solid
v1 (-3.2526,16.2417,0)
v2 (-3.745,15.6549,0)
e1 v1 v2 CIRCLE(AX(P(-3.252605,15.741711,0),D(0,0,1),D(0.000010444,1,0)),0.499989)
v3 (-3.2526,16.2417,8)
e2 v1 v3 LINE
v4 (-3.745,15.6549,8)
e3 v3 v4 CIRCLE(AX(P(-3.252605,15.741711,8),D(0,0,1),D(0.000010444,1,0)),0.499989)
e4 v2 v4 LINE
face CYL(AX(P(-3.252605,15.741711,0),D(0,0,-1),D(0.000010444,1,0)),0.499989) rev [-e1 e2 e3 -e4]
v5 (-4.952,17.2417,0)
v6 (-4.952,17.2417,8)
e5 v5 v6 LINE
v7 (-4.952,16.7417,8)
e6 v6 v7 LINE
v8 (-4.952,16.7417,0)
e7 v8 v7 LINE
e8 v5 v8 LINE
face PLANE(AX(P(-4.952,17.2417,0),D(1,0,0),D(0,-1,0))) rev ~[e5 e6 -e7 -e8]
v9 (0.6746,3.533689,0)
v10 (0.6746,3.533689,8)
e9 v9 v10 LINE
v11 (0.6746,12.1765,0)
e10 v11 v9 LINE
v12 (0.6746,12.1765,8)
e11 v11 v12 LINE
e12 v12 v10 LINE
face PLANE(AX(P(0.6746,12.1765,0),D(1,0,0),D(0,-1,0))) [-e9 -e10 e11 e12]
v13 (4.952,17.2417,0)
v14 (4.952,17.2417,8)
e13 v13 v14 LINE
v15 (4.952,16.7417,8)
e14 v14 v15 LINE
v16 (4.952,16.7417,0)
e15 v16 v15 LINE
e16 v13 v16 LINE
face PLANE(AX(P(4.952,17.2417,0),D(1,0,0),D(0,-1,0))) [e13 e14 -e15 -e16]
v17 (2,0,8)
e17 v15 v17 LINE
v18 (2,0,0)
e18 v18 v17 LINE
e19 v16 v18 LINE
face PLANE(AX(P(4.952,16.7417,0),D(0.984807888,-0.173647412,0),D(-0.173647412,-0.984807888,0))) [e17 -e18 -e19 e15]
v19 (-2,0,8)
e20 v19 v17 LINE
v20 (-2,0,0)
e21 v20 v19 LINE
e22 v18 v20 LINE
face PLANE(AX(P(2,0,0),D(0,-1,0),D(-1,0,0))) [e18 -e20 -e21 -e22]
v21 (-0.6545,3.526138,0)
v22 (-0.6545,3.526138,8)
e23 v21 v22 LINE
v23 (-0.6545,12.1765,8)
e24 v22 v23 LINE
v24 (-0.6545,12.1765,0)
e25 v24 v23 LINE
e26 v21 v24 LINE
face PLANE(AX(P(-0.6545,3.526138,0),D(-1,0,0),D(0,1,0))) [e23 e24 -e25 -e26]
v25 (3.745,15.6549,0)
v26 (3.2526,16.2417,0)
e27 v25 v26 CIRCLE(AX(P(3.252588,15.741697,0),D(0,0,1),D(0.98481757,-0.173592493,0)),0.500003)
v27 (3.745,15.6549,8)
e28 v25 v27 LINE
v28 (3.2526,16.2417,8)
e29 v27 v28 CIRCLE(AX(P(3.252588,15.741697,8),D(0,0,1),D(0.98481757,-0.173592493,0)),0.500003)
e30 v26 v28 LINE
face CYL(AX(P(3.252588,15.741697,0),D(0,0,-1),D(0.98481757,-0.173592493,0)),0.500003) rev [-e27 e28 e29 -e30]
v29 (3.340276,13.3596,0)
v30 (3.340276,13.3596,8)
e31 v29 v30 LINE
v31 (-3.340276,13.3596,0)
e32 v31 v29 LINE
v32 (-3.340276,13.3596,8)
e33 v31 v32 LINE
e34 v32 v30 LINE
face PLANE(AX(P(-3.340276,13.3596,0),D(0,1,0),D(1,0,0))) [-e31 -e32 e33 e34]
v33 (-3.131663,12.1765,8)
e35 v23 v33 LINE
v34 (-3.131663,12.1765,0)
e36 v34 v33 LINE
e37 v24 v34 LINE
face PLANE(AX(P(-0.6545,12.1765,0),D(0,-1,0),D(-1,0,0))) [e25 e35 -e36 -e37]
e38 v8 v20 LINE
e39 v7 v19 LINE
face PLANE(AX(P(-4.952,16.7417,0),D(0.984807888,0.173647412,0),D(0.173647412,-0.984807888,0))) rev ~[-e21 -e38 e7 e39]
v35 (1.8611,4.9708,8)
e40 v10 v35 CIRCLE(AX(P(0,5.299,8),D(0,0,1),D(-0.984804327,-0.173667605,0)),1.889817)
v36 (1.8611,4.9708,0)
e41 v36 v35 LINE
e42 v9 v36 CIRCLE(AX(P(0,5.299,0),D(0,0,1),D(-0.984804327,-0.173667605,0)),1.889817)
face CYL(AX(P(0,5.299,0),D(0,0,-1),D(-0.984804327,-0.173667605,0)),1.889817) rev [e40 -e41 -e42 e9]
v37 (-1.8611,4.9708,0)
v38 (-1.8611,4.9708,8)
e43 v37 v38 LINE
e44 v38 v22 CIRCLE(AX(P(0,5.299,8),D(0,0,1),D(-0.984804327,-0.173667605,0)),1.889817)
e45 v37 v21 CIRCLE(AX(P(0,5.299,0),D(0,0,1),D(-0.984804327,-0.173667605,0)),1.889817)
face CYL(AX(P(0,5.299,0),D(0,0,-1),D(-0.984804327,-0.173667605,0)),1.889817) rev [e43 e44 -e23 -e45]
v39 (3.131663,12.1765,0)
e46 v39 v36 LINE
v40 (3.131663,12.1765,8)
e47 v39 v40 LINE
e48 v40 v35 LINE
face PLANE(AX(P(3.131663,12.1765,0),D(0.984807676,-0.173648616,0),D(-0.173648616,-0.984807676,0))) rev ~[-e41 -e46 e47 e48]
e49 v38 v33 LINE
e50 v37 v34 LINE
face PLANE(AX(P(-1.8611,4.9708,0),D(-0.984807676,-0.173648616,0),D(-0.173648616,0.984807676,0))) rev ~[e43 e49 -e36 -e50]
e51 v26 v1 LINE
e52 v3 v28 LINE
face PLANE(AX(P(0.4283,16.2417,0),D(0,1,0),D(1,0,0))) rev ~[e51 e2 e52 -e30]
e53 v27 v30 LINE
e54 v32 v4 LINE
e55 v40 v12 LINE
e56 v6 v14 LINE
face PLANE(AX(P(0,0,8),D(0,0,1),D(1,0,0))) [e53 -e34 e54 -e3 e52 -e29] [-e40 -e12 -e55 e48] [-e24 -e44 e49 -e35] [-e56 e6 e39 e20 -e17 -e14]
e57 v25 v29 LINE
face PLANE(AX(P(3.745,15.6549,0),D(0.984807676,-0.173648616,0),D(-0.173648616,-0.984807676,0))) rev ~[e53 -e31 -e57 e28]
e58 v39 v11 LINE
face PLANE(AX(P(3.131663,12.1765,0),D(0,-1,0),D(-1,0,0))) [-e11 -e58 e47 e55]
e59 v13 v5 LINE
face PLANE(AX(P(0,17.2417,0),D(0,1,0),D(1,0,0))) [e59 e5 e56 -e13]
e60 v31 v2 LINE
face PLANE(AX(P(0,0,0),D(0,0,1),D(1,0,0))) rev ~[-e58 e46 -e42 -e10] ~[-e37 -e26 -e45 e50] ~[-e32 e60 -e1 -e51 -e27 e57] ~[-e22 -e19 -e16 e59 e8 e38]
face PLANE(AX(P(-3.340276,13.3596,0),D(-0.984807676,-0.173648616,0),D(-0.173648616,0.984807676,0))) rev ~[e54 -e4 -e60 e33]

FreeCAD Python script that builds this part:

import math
import FreeCAD as App
import Part
import Sketcher

V = App.Vector
Q = App.Units.Quantity


def add_polygon(sketch, points):
    """Adds a closed chain of lines whose ends are joined by coincident constraints."""
    first, n = sketch.GeometryCount, len(points)
    for a, b in zip(points, points[1:] + points[:1]):
        sketch.addGeometry(Part.LineSegment(App.Vector(*a, 0), App.Vector(*b, 0)), False)
    for i in range(n):
        sketch.addConstraint(Sketcher.Constraint("Coincident", first + i, 2, first + (i + 1) % n, 1))

doc = App.newDocument("Part")
body = doc.addObject("PartDesign::Body", "Body")

sketch1 = body.newObject("Sketcher::SketchObject", "Sketch")
sketch1.AttachmentSupport = (doc.getObject("XY_Plane"), [""])
sketch1.MapMode = "FlatFace"
add_polygon(sketch1, [(4.95, 17.24), (-4.95, 17.24), (-4.95, 16.74), (-2, 0), (2, 0), (4.95, 16.74)])
sketch1.addGeometry(Part.ArcOfCircle(Part.Circle(V(-3.25, 15.74, 0), V(0, 0, 1), 0.5), math.radians(90), math.radians(190)), False)
sketch1.addGeometry(Part.LineSegment(V(-3.25, 16.24, 0), V(3.25, 16.24, 0)), False)
sketch1.addGeometry(Part.ArcOfCircle(Part.Circle(V(3.25, 15.74, 0), V(0, 0, 1), 0.5), math.radians(-10), math.radians(90)), False)
sketch1.addGeometry(Part.LineSegment(V(3.75, 15.65, 0), V(3.34, 13.36, 0)), False)
sketch1.addGeometry(Part.LineSegment(V(3.34, 13.36, 0), V(-3.34, 13.36, 0)), False)
sketch1.addGeometry(Part.LineSegment(V(-3.34, 13.36, 0), V(-3.75, 15.65, 0)), False)
sketch1.addGeometry(Part.LineSegment(V(-1.86, 4.97, 0), V(-3.13, 12.18, 0)), False)
sketch1.addGeometry(Part.LineSegment(V(-3.13, 12.18, 0), V(-0.65, 12.18, 0)), False)
sketch1.addGeometry(Part.LineSegment(V(-0.65, 12.18, 0), V(-0.65, 3.53, 0)), False)
sketch1.addGeometry(Part.ArcOfCircle(Part.Circle(V(0, 5.3, 0), V(0, 0, 1), 1.89), math.radians(-170), math.radians(-110)), False)
sketch1.addGeometry(Part.ArcOfCircle(Part.Circle(V(0, 5.3, 0), V(0, 0, 1), 1.89), math.radians(-69), math.radians(-10)), False)
sketch1.addGeometry(Part.LineSegment(V(0.67, 3.53, 0), V(0.67, 12.18, 0)), False)
sketch1.addGeometry(Part.LineSegment(V(0.67, 12.18, 0), V(3.13, 12.18, 0)), False)
sketch1.addGeometry(Part.LineSegment(V(3.13, 12.18, 0), V(1.86, 4.97, 0)), False)
sketch1.addConstraint(Sketcher.Constraint("Tangent", 6, 1, 7, 1))
sketch1.addConstraint(Sketcher.Constraint("Tangent", 7, 2, 8, 2))
sketch1.addConstraint(Sketcher.Constraint("Tangent", 8, 1, 9, 1))
sketch1.addConstraint(Sketcher.Constraint("Coincident", 9, 2, 10, 1))
sketch1.addConstraint(Sketcher.Constraint("Coincident", 10, 2, 11, 1))
sketch1.addConstraint(Sketcher.Constraint("Tangent", 11, 2, 6, 2))
sketch1.addConstraint(Sketcher.Constraint("Coincident", 12, 2, 13, 1))
sketch1.addConstraint(Sketcher.Constraint("Coincident", 13, 2, 14, 1))
sketch1.addConstraint(Sketcher.Constraint("Coincident", 14, 2, 15, 2))
sketch1.addConstraint(Sketcher.Constraint("Tangent", 15, 1, 12, 1))
sketch1.addConstraint(Sketcher.Constraint("Coincident", 16, 1, 17, 1))
sketch1.addConstraint(Sketcher.Constraint("Coincident", 17, 2, 18, 1))
sketch1.addConstraint(Sketcher.Constraint("Coincident", 18, 2, 19, 1))
sketch1.addConstraint(Sketcher.Constraint("Tangent", 19, 2, 16, 2))
sketch1.addConstraint(Sketcher.Constraint("Horizontal", 0))
sketch1.addConstraint(Sketcher.Constraint("Vertical", 1))
sketch1.addConstraint(Sketcher.Constraint("Horizontal", 3))
sketch1.addConstraint(Sketcher.Constraint("Vertical", 5))
sketch1.addConstraint(Sketcher.Constraint("Horizontal", 7))
sketch1.addConstraint(Sketcher.Constraint("Horizontal", 10))
sketch1.addConstraint(Sketcher.Constraint("Horizontal", 13))
sketch1.addConstraint(Sketcher.Constraint("Vertical", 14))
sketch1.addConstraint(Sketcher.Constraint("Vertical", 17))
sketch1.addConstraint(Sketcher.Constraint("Horizontal", 18))
sketch1.addConstraint(Sketcher.Constraint("Coincident", 16, 3, 15, 3))
sketch1.addConstraint(Sketcher.Constraint("Equal", 6, 8))
sketch1.addConstraint(Sketcher.Constraint("Equal", 15, 16))
sketch1.addConstraint(Sketcher.Constraint("Symmetric", 2, 2, 3, 2, -1, 1))
sketch1.addConstraint(Sketcher.Constraint("Symmetric", 1, 2, 4, 2, -2))
sketch1.addConstraint(Sketcher.Constraint("Symmetric", 8, 1, 11, 2, -2))
sketch1.addConstraint(Sketcher.Constraint("Symmetric", 12, 2, 18, 2, -2))
sketch1.addConstraint(Sketcher.Constraint("PointOnObject", 15, 3, -2))
sketch1.addConstraint(Sketcher.Constraint("Parallel", 4, 9))
sketch1.addConstraint(Sketcher.Constraint("Parallel", 11, 12))
sketch1.addConstraint(Sketcher.Constraint("Radius", 6, 0.5))
sketch1.addConstraint(Sketcher.Constraint("Distance", 2, 17.0))
sketch1.addConstraint(Sketcher.Constraint("DistanceY", 1, 2, 1, 1, 0.5))
sketch1.addConstraint(Sketcher.Constraint("DistanceX", 2, 2, -1, 1, 2.0))
sketch1.addConstraint(Sketcher.Constraint("DistanceY", 6, 3, 1, 2, 1.0))
sketch1.addConstraint(Sketcher.Constraint("Angle", 2, Q("-80 deg")))
sketch1.addConstraint(Sketcher.Constraint("Radius", 15, 1.8898))
sketch1.addConstraint(Sketcher.Constraint("DistanceX", 18, 1, 18, 2, 2.457))
sketch1.addConstraint(Sketcher.Constraint("DistanceX", 7, 1, 7, 2, 6.5052))
sketch1.addConstraint(Sketcher.Constraint("DistanceX", 10, 2, 10, 1, 6.6806))
sketch1.addConstraint(Sketcher.Constraint("DistanceX", 13, 1, 13, 2, 2.4772))
sketch1.addConstraint(Sketcher.Constraint("DistanceY", 14, 2, 14, 1, 8.6504))
sketch1.addConstraint(Sketcher.Constraint("DistanceY", -1, 1, 15, 3, 5.299))
pad1 = body.newObject("PartDesign::Pad", "Pad")
pad1.Profile = sketch1
pad1.Length = 8

doc.recompute()
